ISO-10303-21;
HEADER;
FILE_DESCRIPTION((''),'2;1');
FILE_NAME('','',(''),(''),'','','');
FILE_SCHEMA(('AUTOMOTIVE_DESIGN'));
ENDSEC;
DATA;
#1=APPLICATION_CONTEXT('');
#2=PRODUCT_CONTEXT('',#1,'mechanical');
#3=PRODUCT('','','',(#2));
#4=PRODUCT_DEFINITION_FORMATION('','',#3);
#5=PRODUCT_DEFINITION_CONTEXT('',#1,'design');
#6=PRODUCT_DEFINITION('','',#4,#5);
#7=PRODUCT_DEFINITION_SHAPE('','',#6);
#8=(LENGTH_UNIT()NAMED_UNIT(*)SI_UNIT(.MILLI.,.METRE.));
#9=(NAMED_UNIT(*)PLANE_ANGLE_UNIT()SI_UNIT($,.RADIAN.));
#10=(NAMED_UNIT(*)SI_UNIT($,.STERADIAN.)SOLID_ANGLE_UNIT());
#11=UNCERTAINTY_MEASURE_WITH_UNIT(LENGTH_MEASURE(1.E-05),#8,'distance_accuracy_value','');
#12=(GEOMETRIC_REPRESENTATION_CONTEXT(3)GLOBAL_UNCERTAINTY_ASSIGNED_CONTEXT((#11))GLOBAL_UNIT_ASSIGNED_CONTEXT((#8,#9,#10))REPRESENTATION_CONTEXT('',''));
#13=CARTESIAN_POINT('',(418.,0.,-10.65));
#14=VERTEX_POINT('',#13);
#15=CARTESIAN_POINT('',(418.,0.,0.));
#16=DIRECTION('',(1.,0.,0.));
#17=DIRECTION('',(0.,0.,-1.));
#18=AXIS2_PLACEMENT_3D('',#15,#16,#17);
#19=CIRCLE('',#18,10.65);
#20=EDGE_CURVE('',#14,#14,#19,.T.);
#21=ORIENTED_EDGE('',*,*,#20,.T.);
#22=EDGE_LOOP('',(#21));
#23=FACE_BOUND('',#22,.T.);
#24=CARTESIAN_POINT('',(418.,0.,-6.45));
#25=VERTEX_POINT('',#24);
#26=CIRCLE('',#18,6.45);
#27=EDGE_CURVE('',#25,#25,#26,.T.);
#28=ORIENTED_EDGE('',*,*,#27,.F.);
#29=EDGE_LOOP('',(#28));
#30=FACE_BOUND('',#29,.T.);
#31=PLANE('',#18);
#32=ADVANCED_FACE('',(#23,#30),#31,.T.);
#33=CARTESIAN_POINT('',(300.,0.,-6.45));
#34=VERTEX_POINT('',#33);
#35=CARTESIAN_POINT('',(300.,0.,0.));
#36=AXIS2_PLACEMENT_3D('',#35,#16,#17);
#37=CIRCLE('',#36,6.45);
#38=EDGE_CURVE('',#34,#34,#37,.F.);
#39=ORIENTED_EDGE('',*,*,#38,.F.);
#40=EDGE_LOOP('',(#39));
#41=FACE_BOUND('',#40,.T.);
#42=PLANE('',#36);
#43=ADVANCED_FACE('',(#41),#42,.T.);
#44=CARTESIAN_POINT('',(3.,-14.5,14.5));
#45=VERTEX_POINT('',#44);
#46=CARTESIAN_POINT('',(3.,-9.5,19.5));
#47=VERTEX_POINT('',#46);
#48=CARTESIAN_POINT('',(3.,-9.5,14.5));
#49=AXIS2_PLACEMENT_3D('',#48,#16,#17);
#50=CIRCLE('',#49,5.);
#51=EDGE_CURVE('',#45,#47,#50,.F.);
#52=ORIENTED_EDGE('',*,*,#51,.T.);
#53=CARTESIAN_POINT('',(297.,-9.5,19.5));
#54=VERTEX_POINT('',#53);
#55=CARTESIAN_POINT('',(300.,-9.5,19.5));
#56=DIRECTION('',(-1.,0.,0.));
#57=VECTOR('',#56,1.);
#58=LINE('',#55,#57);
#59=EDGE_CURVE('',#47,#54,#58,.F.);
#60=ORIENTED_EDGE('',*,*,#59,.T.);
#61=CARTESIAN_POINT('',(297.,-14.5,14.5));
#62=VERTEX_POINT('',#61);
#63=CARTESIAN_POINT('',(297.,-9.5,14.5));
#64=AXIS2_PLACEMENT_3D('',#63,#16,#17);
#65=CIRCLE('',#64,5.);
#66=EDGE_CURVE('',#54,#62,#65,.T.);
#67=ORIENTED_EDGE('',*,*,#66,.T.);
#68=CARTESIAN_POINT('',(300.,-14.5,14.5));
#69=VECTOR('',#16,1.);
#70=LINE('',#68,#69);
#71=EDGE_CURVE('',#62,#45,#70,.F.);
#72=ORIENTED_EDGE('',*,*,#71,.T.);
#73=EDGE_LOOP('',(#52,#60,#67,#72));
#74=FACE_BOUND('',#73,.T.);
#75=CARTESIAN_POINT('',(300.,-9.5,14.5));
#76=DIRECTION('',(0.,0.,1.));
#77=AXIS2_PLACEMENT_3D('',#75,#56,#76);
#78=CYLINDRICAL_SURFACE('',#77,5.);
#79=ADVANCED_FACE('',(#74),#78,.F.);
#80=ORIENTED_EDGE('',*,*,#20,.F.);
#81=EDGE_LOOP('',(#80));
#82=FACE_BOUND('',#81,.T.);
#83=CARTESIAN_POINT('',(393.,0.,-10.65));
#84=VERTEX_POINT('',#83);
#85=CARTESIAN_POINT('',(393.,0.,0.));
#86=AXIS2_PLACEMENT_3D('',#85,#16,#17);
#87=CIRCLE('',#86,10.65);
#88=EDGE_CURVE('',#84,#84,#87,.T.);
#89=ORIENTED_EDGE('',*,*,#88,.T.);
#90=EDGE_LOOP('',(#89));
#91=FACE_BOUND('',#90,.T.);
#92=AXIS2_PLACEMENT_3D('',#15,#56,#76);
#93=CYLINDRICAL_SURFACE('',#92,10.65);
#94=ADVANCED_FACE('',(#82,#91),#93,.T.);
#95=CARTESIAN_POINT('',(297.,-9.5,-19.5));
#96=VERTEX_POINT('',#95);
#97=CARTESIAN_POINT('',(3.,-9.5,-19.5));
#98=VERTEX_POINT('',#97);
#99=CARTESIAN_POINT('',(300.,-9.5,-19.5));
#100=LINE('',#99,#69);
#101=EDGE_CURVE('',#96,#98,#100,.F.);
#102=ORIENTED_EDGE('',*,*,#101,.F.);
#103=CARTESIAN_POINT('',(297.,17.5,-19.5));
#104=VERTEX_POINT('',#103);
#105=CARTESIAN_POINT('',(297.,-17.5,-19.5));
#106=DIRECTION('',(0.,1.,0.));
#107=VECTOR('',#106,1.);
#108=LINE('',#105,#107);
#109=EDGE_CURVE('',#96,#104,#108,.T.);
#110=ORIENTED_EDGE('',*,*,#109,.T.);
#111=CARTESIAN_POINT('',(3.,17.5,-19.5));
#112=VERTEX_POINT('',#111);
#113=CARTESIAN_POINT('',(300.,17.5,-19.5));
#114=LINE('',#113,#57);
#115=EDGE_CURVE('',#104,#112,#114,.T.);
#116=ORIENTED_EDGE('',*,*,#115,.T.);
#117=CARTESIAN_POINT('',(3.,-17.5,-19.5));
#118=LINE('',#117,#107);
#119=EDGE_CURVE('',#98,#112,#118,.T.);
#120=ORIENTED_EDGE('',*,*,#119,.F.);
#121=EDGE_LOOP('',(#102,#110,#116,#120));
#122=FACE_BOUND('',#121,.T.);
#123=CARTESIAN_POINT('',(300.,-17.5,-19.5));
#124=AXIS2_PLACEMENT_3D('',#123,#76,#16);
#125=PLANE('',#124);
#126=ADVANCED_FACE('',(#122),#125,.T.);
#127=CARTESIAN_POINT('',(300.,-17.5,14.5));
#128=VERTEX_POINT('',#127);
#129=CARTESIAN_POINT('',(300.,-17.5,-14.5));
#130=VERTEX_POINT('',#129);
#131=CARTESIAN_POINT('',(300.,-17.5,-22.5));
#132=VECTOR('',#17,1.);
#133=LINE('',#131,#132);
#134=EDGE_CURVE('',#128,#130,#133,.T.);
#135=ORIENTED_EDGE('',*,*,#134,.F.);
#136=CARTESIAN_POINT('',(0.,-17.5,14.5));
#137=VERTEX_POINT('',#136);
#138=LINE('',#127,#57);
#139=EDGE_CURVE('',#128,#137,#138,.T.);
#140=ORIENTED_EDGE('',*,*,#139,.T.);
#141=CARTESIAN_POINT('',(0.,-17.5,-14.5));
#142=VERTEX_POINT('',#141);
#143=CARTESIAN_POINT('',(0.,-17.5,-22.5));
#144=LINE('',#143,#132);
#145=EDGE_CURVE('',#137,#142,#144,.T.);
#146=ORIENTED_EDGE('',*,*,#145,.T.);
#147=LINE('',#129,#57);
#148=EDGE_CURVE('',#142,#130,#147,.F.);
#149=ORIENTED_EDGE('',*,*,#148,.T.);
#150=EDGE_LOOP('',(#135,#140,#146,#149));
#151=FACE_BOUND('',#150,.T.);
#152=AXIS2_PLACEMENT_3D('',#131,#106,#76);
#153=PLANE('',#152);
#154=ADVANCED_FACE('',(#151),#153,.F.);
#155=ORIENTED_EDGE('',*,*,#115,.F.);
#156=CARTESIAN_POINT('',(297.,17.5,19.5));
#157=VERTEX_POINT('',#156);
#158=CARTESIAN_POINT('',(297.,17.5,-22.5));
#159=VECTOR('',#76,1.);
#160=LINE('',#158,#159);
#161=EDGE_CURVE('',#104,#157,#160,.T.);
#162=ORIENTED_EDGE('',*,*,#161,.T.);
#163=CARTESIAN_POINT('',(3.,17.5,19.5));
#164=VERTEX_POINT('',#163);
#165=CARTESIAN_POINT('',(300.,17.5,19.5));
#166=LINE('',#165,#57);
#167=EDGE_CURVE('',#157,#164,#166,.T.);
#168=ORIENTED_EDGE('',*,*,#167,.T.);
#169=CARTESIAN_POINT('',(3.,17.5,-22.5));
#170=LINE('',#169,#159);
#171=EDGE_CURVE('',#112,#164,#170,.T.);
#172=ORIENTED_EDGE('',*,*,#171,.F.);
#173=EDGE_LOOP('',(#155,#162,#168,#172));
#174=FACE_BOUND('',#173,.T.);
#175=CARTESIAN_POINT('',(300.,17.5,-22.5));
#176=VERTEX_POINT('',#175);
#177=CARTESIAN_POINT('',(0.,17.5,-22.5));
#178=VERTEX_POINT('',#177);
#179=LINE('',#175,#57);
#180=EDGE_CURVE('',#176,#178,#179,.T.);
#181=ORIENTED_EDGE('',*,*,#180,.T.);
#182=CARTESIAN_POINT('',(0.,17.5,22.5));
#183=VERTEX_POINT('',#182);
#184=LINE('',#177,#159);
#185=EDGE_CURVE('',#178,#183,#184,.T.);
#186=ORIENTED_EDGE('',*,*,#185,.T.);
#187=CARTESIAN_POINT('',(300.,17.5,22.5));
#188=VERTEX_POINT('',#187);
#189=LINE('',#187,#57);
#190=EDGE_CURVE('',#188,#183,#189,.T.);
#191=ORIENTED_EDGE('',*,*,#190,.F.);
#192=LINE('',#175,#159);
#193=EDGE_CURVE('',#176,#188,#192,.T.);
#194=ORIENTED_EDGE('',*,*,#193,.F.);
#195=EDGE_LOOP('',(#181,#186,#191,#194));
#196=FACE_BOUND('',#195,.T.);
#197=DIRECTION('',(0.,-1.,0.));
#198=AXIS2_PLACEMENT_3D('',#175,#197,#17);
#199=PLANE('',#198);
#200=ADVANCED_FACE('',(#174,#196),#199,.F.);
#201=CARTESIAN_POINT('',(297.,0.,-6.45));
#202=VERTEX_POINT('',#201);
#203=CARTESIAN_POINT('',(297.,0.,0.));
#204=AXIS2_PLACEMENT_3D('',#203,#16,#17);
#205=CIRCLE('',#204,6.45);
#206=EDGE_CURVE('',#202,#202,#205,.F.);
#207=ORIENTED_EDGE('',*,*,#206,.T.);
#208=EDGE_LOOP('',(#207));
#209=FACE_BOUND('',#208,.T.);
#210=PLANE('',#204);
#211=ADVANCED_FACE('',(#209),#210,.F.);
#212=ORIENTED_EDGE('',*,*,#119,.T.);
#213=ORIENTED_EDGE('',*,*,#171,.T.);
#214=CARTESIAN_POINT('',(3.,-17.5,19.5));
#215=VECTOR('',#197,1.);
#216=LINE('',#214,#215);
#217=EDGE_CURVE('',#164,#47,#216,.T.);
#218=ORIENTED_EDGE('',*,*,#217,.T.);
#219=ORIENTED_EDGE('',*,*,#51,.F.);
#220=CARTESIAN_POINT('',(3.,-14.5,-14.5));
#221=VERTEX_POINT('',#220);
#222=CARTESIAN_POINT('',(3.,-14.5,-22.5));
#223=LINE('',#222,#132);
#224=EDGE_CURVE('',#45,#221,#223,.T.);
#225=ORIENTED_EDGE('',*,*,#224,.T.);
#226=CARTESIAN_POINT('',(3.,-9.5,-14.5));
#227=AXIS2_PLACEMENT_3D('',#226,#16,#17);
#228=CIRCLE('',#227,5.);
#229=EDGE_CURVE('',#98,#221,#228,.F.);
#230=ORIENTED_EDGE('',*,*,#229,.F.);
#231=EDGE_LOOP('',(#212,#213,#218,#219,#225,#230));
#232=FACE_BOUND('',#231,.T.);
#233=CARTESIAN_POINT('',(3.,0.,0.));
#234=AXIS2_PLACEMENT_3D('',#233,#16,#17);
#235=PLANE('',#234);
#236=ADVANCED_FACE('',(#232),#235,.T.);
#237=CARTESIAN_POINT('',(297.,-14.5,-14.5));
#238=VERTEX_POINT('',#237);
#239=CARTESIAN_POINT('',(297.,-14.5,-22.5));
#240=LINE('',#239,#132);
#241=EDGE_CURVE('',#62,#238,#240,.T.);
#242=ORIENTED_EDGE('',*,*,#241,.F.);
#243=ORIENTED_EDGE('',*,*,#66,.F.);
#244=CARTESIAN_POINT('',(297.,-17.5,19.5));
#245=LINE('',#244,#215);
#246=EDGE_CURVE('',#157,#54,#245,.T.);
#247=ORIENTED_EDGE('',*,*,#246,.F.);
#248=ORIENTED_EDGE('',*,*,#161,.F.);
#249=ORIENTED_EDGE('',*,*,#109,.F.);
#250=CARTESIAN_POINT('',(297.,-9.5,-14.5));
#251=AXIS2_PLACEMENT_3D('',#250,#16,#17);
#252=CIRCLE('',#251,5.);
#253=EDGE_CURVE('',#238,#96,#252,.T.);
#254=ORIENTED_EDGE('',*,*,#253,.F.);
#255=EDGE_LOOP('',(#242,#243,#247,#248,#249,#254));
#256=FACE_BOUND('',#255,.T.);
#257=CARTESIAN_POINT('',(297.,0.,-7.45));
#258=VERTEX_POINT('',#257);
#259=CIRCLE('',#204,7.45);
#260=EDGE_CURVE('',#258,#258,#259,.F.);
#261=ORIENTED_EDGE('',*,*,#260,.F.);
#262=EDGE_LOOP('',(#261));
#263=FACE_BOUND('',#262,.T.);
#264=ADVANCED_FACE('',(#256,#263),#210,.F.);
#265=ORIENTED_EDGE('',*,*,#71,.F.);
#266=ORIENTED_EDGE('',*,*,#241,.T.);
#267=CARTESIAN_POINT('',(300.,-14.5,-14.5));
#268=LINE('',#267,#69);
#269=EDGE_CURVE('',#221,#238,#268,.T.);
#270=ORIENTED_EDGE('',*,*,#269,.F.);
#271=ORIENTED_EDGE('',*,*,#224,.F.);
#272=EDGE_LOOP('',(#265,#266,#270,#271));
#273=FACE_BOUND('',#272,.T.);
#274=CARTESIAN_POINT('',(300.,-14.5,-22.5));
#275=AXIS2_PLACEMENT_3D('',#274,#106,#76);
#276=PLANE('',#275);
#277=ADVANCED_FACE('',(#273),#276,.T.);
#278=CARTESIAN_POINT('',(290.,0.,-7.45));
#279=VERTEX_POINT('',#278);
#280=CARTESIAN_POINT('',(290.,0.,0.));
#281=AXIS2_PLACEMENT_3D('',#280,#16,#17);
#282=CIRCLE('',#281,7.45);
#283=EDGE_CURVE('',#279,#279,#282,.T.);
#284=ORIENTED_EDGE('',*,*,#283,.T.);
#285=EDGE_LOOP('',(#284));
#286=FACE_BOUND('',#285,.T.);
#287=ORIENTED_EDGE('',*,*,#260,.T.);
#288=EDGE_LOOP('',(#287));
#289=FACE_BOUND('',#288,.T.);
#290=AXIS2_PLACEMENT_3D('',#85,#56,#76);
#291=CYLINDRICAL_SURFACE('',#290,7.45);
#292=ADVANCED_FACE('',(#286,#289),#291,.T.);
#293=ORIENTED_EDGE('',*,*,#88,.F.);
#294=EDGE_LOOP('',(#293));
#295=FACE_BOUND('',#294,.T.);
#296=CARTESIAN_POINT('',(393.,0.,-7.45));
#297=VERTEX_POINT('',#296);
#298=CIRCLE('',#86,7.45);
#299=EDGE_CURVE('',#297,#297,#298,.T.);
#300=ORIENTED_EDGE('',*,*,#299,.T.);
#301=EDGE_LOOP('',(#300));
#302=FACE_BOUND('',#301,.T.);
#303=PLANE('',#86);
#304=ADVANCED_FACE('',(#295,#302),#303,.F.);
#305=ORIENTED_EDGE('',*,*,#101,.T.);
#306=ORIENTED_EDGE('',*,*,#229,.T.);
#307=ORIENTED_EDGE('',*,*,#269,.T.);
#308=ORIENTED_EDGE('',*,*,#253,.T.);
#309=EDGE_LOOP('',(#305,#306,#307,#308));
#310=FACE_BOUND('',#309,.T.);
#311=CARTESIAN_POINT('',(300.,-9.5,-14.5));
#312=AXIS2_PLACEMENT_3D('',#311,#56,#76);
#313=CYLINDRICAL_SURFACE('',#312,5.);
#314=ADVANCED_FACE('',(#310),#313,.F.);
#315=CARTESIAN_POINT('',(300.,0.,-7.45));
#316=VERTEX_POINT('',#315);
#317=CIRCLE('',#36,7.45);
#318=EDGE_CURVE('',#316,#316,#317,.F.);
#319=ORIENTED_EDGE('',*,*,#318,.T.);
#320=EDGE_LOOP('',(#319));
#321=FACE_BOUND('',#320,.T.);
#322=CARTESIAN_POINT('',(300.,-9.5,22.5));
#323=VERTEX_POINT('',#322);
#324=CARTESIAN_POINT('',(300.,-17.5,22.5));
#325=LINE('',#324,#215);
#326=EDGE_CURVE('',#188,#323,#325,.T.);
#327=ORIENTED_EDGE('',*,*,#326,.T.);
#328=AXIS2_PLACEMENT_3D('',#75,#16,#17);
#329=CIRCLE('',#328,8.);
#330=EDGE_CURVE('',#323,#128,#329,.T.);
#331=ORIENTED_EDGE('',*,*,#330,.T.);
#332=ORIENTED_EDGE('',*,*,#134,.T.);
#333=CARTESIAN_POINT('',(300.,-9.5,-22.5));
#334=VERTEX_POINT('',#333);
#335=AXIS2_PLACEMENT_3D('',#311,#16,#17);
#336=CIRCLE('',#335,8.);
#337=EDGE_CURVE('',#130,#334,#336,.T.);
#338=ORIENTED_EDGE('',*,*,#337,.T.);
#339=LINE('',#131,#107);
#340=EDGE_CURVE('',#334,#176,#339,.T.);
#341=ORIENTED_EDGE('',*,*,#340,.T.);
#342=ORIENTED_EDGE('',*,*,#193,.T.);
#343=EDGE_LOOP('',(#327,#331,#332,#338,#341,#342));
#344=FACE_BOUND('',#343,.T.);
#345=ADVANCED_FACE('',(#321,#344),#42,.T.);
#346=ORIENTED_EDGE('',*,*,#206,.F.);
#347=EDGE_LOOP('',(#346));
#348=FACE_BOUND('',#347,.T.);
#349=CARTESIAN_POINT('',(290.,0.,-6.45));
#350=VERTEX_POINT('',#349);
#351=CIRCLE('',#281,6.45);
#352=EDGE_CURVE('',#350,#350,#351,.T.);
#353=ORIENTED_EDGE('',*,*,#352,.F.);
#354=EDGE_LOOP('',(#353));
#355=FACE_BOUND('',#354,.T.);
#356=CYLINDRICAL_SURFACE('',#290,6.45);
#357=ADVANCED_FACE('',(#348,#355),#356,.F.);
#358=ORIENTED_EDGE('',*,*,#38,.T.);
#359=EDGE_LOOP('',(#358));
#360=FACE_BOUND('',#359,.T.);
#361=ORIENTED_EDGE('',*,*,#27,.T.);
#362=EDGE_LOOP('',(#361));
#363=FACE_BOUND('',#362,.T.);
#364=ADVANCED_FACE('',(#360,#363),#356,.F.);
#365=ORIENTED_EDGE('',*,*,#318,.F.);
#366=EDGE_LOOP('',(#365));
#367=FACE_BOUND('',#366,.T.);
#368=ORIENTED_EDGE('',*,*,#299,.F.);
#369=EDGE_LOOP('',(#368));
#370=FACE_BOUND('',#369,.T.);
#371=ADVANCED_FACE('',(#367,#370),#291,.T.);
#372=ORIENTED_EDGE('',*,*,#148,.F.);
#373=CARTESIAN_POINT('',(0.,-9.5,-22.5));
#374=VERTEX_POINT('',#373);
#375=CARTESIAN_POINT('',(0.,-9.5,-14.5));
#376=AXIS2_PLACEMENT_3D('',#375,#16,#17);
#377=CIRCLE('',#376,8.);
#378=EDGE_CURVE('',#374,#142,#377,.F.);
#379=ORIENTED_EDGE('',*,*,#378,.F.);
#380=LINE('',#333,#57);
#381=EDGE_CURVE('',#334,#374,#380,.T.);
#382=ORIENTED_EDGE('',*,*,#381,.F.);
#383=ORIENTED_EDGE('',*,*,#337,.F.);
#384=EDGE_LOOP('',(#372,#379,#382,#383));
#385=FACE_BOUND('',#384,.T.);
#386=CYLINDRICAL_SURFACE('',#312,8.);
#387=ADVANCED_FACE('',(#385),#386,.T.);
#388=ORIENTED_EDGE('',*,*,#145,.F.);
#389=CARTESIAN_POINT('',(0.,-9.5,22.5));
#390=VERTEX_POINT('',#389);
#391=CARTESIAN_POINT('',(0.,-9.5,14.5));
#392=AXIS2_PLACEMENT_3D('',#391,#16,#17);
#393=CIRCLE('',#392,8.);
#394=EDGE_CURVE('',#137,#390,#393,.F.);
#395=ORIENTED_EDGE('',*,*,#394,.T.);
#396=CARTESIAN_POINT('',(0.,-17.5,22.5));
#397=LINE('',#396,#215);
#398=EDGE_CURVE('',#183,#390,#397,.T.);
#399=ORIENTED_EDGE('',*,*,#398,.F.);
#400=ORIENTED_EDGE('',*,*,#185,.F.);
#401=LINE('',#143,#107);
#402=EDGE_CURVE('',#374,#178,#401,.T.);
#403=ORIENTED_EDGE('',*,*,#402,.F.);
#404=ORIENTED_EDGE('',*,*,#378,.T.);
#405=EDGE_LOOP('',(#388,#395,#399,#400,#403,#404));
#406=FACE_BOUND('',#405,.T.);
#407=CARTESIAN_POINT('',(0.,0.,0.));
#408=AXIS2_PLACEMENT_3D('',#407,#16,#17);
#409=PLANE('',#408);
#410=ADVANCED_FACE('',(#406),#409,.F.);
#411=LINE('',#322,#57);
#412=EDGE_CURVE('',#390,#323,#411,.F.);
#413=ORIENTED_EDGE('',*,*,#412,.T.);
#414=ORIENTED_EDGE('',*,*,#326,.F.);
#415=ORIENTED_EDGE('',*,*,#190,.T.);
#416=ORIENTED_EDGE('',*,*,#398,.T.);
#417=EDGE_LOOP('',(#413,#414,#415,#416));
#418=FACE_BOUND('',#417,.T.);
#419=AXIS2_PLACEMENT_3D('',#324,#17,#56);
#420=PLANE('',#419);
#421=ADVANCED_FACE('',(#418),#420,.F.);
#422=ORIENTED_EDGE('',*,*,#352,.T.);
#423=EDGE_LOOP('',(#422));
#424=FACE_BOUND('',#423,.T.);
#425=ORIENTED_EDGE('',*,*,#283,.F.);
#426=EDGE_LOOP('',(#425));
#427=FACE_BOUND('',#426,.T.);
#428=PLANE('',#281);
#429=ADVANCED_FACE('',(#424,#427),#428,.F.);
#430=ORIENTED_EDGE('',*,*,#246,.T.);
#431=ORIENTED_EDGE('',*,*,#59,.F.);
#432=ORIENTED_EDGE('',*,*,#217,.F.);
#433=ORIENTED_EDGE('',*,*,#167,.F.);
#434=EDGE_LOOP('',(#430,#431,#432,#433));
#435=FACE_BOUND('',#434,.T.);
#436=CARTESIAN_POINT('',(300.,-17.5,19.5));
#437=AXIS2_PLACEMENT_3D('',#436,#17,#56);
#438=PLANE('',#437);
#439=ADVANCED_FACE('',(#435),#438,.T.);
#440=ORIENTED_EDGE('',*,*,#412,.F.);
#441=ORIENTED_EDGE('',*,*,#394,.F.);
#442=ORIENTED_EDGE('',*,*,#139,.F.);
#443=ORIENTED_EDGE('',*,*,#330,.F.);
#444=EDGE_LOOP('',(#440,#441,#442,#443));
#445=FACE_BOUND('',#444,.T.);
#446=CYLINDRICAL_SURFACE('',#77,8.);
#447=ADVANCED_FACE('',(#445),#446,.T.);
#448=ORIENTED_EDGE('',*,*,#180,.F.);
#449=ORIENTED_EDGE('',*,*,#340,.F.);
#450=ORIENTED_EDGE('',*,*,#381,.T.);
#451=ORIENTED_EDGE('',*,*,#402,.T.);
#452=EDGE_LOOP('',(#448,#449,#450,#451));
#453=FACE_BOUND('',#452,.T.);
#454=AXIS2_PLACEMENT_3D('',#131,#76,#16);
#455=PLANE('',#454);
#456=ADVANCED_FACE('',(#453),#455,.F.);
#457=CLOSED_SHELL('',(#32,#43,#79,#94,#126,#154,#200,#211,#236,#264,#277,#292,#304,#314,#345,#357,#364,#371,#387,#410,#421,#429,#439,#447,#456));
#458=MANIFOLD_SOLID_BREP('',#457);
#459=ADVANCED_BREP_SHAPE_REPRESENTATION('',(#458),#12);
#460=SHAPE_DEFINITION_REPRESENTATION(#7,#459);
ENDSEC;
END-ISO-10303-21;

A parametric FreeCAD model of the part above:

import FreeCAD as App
import Part
import Sketcher
from FreeCAD import Vector
Q = App.Units.Quantity


def edges_at(feature, points):
    """Names of the edges that pass closest to the given points."""
    edges = feature.Shape.Edges
    near = lambda p: min(range(len(edges)), key=lambda i: edges[i].distToShape(Part.Vertex(*p))[0])
    return sorted({f"Edge{near(p) + 1}" for p in points})


def faces_at(feature, points):
    """Names of the faces that lie closest to the given points."""
    faces = feature.Shape.Faces
    near = lambda p: min(range(len(faces)), key=lambda i: faces[i].distToShape(Part.Vertex(*p))[0])
    return sorted({f"Face{near(p) + 1}" for p in points})

doc = App.newDocument("Part")
body = doc.addObject("PartDesign::Body", "Body")

sketch1 = body.newObject("Sketcher::SketchObject", "Sketch")
sketch1.AttachmentSupport = (doc.getObject("YZ_Plane"), [""])
sketch1.MapMode = "FlatFace"
sketch1.addGeometry(Part.LineSegment(Vector(18, 22, 0), Vector(-18, 22, 0)), False)
sketch1.addGeometry(Part.LineSegment(Vector(-18, 22, 0), Vector(-18, -22, 0)), False)
sketch1.addGeometry(Part.LineSegment(Vector(-18, -22, 0), Vector(18, -22, 0)), False)
sketch1.addGeometry(Part.LineSegment(Vector(18, -22, 0), Vector(18, 22, 0)), False)
sketch1.addConstraint(Sketcher.Constraint("Coincident", 0, 2, 1, 1))
sketch1.addConstraint(Sketcher.Constraint("Coincident", 1, 2, 2, 1))
sketch1.addConstraint(Sketcher.Constraint("Coincident", 2, 2, 3, 1))
sketch1.addConstraint(Sketcher.Constraint("Coincident", 3, 2, 0, 1))
sketch1.addConstraint(Sketcher.Constraint("Horizontal", 0))
sketch1.addConstraint(Sketcher.Constraint("Vertical", 1))
sketch1.addConstraint(Sketcher.Constraint("Horizontal", 2))
sketch1.addConstraint(Sketcher.Constraint("Vertical", 3))
sketch1.addConstraint(Sketcher.Constraint("Symmetric", 0, 2, 2, 2, -1, 1))
sketch1.addConstraint(Sketcher.Constraint("DistanceX", 0, 2, 0, 1, Q("35 mm")))
sketch1.addConstraint(Sketcher.Constraint("DistanceY", 1, 2, 1, 1, Q("45 mm")))
pad1 = body.newObject("PartDesign::Pad", "Pad")
pad1.Profile = sketch1
pad1.Length = 300
doc.recompute()

fillet = body.newObject("PartDesign::Fillet", "Fillet")
fillet.Base = (pad1, edges_at(pad1, [(150, -17.5, -22.5), (150, -17.5, 22.5)]))
fillet.Radius = 8
doc.recompute()

thickness = body.newObject("PartDesign::Thickness", "Thickness")
thickness.Base = (fillet, faces_at(fillet, [(150, 17.5, 0)]))
thickness.Value = 3
thickness.Reversed = True
thickness.Join = "Intersection"

sketch2 = body.newObject("Sketcher::SketchObject", "Sketch001")
sketch2.AttachmentSupport = (doc.getObject("YZ_Plane"), [""])
sketch2.MapMode = "FlatFace"
sketch2.AttachmentOffset = App.Placement(Vector(0, 0, 290), App.Rotation())
sketch2.addGeometry(Part.Circle(Vector(0, 0, 0), Vector(0, 0, 1), 7), False)
sketch2.addGeometry(Part.Circle(Vector(0, 0, 0), Vector(0, 0, 1), 6), False)
sketch2.addConstraint(Sketcher.Constraint("Coincident", 0, 3, -1, 1))
sketch2.addConstraint(Sketcher.Constraint("Coincident", 1, 3, -1, 1))
sketch2.addConstraint(Sketcher.Constraint("Diameter", 0, Q("14.9 mm")))
sketch2.addConstraint(Sketcher.Constraint("Diameter", 1, Q("12.9 mm")))
pad2 = body.newObject("PartDesign::Pad", "Pad001")
pad2.Profile = sketch2
pad2.Length = 103

sketch3 = body.newObject("Sketcher::SketchObject", "Sketch002")
sketch3.AttachmentSupport = (doc.getObject("YZ_Plane"), [""])
sketch3.MapMode = "FlatFace"
sketch3.AttachmentOffset = App.Placement(Vector(0, 0, 393), App.Rotation())
sketch3.addGeometry(Part.Circle(Vector(0, 0, 0), Vector(0, 0, 1), 11), False)
sketch3.addGeometry(Part.Circle(Vector(0, 0, 0), Vector(0, 0, 1), 6), False)
sketch3.addConstraint(Sketcher.Constraint("Coincident", 0, 3, -1, 1))
sketch3.addConstraint(Sketcher.Constraint("Coincident", 1, 3, -1, 1))
sketch3.addConstraint(Sketcher.Constraint("Diameter", 0, Q("21.3 mm")))
sketch3.addConstraint(Sketcher.Constraint("Diameter", 1, Q("12.9 mm")))
pad3 = body.newObject("PartDesign::Pad", "Pad002")
pad3.Profile = sketch3
pad3.Length = 25

doc.recompute()
